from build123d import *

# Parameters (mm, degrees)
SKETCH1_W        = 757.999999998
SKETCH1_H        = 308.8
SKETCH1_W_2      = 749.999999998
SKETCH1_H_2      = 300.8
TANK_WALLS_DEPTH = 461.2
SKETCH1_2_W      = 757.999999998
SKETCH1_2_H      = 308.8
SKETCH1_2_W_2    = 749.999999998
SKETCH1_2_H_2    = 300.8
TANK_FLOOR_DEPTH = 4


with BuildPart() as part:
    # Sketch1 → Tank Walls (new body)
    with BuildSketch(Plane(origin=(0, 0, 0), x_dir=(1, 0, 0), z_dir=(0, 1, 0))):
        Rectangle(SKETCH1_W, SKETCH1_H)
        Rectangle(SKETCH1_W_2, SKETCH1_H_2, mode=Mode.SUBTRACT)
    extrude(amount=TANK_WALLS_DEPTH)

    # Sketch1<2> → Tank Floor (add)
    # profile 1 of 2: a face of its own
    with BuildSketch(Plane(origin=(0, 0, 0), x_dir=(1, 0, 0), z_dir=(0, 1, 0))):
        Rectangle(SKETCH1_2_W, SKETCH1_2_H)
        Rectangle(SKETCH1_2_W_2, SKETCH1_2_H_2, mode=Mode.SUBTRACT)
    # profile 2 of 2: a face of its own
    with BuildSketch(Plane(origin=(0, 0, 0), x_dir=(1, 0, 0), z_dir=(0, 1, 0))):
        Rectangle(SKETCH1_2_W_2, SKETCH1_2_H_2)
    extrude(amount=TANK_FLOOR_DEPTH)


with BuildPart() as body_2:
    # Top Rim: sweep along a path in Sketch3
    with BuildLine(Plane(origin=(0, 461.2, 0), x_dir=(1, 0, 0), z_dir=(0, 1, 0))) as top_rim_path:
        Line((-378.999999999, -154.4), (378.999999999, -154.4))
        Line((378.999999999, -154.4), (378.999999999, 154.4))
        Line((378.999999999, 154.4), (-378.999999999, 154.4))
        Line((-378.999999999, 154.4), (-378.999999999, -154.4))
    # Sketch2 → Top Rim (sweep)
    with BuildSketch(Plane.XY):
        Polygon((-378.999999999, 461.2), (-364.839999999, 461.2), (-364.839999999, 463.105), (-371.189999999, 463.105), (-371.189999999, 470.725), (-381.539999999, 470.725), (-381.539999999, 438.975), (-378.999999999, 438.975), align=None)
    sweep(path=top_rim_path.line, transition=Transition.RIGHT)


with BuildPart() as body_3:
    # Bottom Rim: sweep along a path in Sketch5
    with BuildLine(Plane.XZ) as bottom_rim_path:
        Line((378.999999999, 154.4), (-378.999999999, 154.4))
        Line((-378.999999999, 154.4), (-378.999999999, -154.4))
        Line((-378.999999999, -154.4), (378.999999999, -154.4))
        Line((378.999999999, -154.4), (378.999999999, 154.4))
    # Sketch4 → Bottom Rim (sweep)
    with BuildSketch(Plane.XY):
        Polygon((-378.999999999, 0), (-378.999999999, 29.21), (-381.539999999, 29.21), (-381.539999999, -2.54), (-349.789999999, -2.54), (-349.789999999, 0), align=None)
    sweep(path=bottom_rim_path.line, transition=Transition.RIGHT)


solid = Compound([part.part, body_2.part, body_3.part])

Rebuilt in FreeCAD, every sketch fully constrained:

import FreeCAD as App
import Part
import Sketcher
Q = App.Units.Quantity

doc = App.newDocument("Part")
params = doc.addObject("Spreadsheet::Sheet", "Params")
for row, (alias, value) in enumerate([
    ("pad1_length", "461.2 mm"),
    ("pad2_length", "4 mm"),
    ("sketch3_width", "0.1 in"),
    ("sketch3_height", "0.3 in"),
    ("sketch3_width2", "0.25 in"),
    ("sketch3_height2", "1.25 in"),
    ("sketch3_height3", "0.075 in"),
    ("sketch5_width", "0.1 in"),
    ("sketch5_width2", "1.25 in"),
], start=1):
    params.set(f"A{row}", alias)
    params.set(f"B{row}", "=" + value)
    params.setAlias(f"B{row}", alias)

body = doc.addObject("PartDesign::Body", "Body")

# Sketch on XZ plane
sketch1 = doc.addObject("Sketcher::SketchObject", "Sketch")
body.addObject(sketch1)
sketch1.AttachmentSupport = (doc.XZ_Plane, [""])
sketch1.MapMode = "FlatFace"
sketch1.addGeometry(Part.LineSegment(App.Vector(-379, -154, 0), App.Vector(-379, 154, 0)), False)
sketch1.addGeometry(Part.LineSegment(App.Vector(-379, 154, 0), App.Vector(379, 154, 0)), False)
sketch1.addGeometry(Part.LineSegment(App.Vector(379, 154, 0), App.Vector(379, -154, 0)), False)
sketch1.addGeometry(Part.LineSegment(App.Vector(379, -154, 0), App.Vector(-379, -154, 0)), False)
sketch1.addGeometry(Part.LineSegment(App.Vector(375, 150, 0), App.Vector(-375, 150, 0)), False)
sketch1.addGeometry(Part.LineSegment(App.Vector(-375, 150, 0), App.Vector(-375, -150, 0)), False)
sketch1.addGeometry(Part.LineSegment(App.Vector(-375, -150, 0), App.Vector(375, -150, 0)), False)
sketch1.addGeometry(Part.LineSegment(App.Vector(375, -150, 0), App.Vector(375, 150, 0)), False)
sketch1.addConstraint(Sketcher.Constraint("Coincident", 0, 2, 1, 1))
sketch1.addConstraint(Sketcher.Constraint("Coincident", 1, 2, 2, 1))
sketch1.addConstraint(Sketcher.Constraint("Coincident", 2, 2, 3, 1))
sketch1.addConstraint(Sketcher.Constraint("Coincident", 3, 2, 0, 1))
sketch1.addConstraint(Sketcher.Constraint("Coincident", 4, 2, 5, 1))
sketch1.addConstraint(Sketcher.Constraint("Coincident", 5, 2, 6, 1))
sketch1.addConstraint(Sketcher.Constraint("Coincident", 6, 2, 7, 1))
sketch1.addConstraint(Sketcher.Constraint("Coincident", 7, 2, 4, 1))
sketch1.addConstraint(Sketcher.Constraint("Vertical", 0))
sketch1.addConstraint(Sketcher.Constraint("Horizontal", 1))
sketch1.addConstraint(Sketcher.Constraint("Vertical", 2))
sketch1.addConstraint(Sketcher.Constraint("Horizontal", 3))
sketch1.addConstraint(Sketcher.Constraint("Horizontal", 4))
sketch1.addConstraint(Sketcher.Constraint("Vertical", 5))
sketch1.addConstraint(Sketcher.Constraint("Horizontal", 6))
sketch1.addConstraint(Sketcher.Constraint("Vertical", 7))
sketch1.addConstraint(Sketcher.Constraint("Symmetric", 0, 2, 2, 2, -1, 1))
sketch1.addConstraint(Sketcher.Constraint("Symmetric", 4, 2, 6, 2, -1, 1))
sketch1.addConstraint(Sketcher.Constraint("DistanceY", 3, 2, 4, 2, Q("12 in")))
sketch1.addConstraint(Sketcher.Constraint("DistanceX", 1, 1, 1, 2, 758.0))
sketch1.addConstraint(Sketcher.Constraint("DistanceX", 4, 2, 4, 1, 750.0))
sketch1.addConstraint(Sketcher.Constraint("DistanceY", 0, 1, 0, 2, 308.8))
pad1 = doc.addObject("PartDesign::Pad", "Pad")
body.addObject(pad1)
pad1.Profile = sketch1
pad1.setExpression("Length", "Params.pad1_length")
pad1.Reversed = True

# Sketch on XZ plane
sketch2 = doc.addObject("Sketcher::SketchObject", "Sketch001")
body.addObject(sketch2)
sketch2.AttachmentSupport = (doc.XZ_Plane, [""])
sketch2.MapMode = "FlatFace"
sketch2.addGeometry(Part.LineSegment(App.Vector(-379, -154, 0), App.Vector(-379, 154, 0)), False)
sketch2.addGeometry(Part.LineSegment(App.Vector(-379, 154, 0), App.Vector(379, 154, 0)), False)
sketch2.addGeometry(Part.LineSegment(App.Vector(379, 154, 0), App.Vector(379, -154, 0)), False)
sketch2.addGeometry(Part.LineSegment(App.Vector(379, -154, 0), App.Vector(-379, -154, 0)), False)
sketch2.addConstraint(Sketcher.Constraint("Coincident", 0, 2, 1, 1))
sketch2.addConstraint(Sketcher.Constraint("Coincident", 1, 2, 2, 1))
sketch2.addConstraint(Sketcher.Constraint("Coincident", 2, 2, 3, 1))
sketch2.addConstraint(Sketcher.Constraint("Coincident", 3, 2, 0, 1))
sketch2.addConstraint(Sketcher.Constraint("Vertical", 0))
sketch2.addConstraint(Sketcher.Constraint("Horizontal", 1))
sketch2.addConstraint(Sketcher.Constraint("Vertical", 2))
sketch2.addConstraint(Sketcher.Constraint("Horizontal", 3))
sketch2.addConstraint(Sketcher.Constraint("Symmetric", 0, 2, 2, 2, -1, 1))
sketch2.addConstraint(Sketcher.Constraint("DistanceX", 1, 1, 1, 2, 758.0))
sketch2.addConstraint(Sketcher.Constraint("DistanceY", 0, 1, 0, 2, 308.8))
pad2 = doc.addObject("PartDesign::Pad", "Pad001")
body.addObject(pad2)
pad2.Profile = sketch2
pad2.setExpression("Length", "Params.pad2_length")
pad2.Reversed = True
body2 = doc.addObject("PartDesign::Body", "Body001")

# Sketch on XY plane
sketch3 = doc.addObject("Sketcher::SketchObject", "Sketch002")
body2.addObject(sketch3)
sketch3.AttachmentSupport = (doc.getObject("XY_Plane001"), [""])
sketch3.MapMode = "FlatFace"
sketch3.addGeometry(Part.LineSegment(App.Vector(-379, 461.2, 0), App.Vector(-364.8, 461.2, 0)), False)
sketch3.addGeometry(Part.LineSegment(App.Vector(-364.8, 461.2, 0), App.Vector(-364.8, 463.1, 0)), False)
sketch3.addGeometry(Part.LineSegment(App.Vector(-364.8, 463.1, 0), App.Vector(-371.2, 463.1, 0)), False)
sketch3.addGeometry(Part.LineSegment(App.Vector(-371.2, 463.1, 0), App.Vector(-371.2, 470.7, 0)), False)
sketch3.addGeometry(Part.LineSegment(App.Vector(-371.2, 470.7, 0), App.Vector(-381.5, 470.7, 0)), False)
sketch3.addGeometry(Part.LineSegment(App.Vector(-381.5, 470.7, 0), App.Vector(-381.5, 439, 0)), False)
sketch3.addGeometry(Part.LineSegment(App.Vector(-381.5, 439, 0), App.Vector(-379, 439, 0)), False)
sketch3.addGeometry(Part.LineSegment(App.Vector(-379, 439, 0), App.Vector(-379, 461.2, 0)), False)
sketch3.addConstraint(Sketcher.Constraint("Coincident", 0, 2, 1, 1))
sketch3.addConstraint(Sketcher.Constraint("Coincident", 1, 2, 2, 1))
sketch3.addConstraint(Sketcher.Constraint("Coincident", 2, 2, 3, 1))
sketch3.addConstraint(Sketcher.Constraint("Coincident", 3, 2, 4, 1))
sketch3.addConstraint(Sketcher.Constraint("Coincident", 4, 2, 5, 1))
sketch3.addConstraint(Sketcher.Constraint("Coincident", 5, 2, 6, 1))
sketch3.addConstraint(Sketcher.Constraint("Coincident", 6, 2, 7, 1))
sketch3.addConstraint(Sketcher.Constraint("Coincident", 7, 2, 0, 1))
sketch3.addConstraint(Sketcher.Constraint("Horizontal", 0))
sketch3.addConstraint(Sketcher.Constraint("Vertical", 1))
sketch3.addConstraint(Sketcher.Constraint("Horizontal", 2))
sketch3.addConstraint(Sketcher.Constraint("Vertical", 3))
sketch3.addConstraint(Sketcher.Constraint("Horizontal", 4))
sketch3.addConstraint(Sketcher.Constraint("Vertical", 5))
sketch3.addConstraint(Sketcher.Constraint("Horizontal", 6))
sketch3.addConstraint(Sketcher.Constraint("Vertical", 7))
sketch3.addConstraint(Sketcher.Constraint("DistanceX", 6, 1, 6, 2, Q("0.1 in")))
sketch3.addConstraint(Sketcher.Constraint("DistanceY", 3, 1, 3, 2, Q("0.3 in")))
sketch3.addConstraint(Sketcher.Constraint("DistanceX", 2, 2, 2, 1, Q("0.25 in")))
sketch3.addConstraint(Sketcher.Constraint("DistanceY", 5, 2, 5, 1, Q("1.25 in")))
sketch3.addConstraint(Sketcher.Constraint("DistanceY", 1, 1, 1, 2, Q("0.075 in")))
sketch3.addConstraint(Sketcher.Constraint("DistanceX", 0, 1, 0, 2, 14.16))
sketch3.addConstraint(Sketcher.Constraint("DistanceX", 0, 2, -1, 1, 364.84))
sketch3.addConstraint(Sketcher.Constraint("DistanceY", -1, 1, 0, 2, 461.2))
sketch3.setExpression("Constraints[16]", "Params.sketch3_width")
sketch3.setExpression("Constraints[17]", "Params.sketch3_height")
sketch3.setExpression("Constraints[18]", "Params.sketch3_width2")
sketch3.setExpression("Constraints[19]", "Params.sketch3_height2")
sketch3.setExpression("Constraints[20]", "Params.sketch3_height3")

# Sketch on XZ plane
sketch4 = doc.addObject("Sketcher::SketchObject", "Sketch003")
body2.addObject(sketch4)
sketch4.AttachmentSupport = (doc.getObject("XZ_Plane001"), [""])
sketch4.MapMode = "FlatFace"
sketch4.AttachmentOffset = App.Placement(App.Vector(0, 0, -461.2), App.Rotation())
sketch4.addGeometry(Part.LineSegment(App.Vector(-379, 154, 0), App.Vector(379, 154, 0)), False)
sketch4.addGeometry(Part.LineSegment(App.Vector(379, 154, 0), App.Vector(379, -154, 0)), False)
sketch4.addGeometry(Part.LineSegment(App.Vector(379, -154, 0), App.Vector(-379, -154, 0)), False)
sketch4.addGeometry(Part.LineSegment(App.Vector(-379, -154, 0), App.Vector(-379, 154, 0)), False)
sketch4.addConstraint(Sketcher.Constraint("Coincident", 0, 2, 1, 1))
sketch4.addConstraint(Sketcher.Constraint("Coincident", 1, 2, 2, 1))
sketch4.addConstraint(Sketcher.Constraint("Coincident", 2, 2, 3, 1))
sketch4.addConstraint(Sketcher.Constraint("Coincident", 3, 2, 0, 1))
sketch4.addConstraint(Sketcher.Constraint("Horizontal", 0))
sketch4.addConstraint(Sketcher.Constraint("Vertical", 1))
sketch4.addConstraint(Sketcher.Constraint("Horizontal", 2))
sketch4.addConstraint(Sketcher.Constraint("Vertical", 3))
sketch4.addConstraint(Sketcher.Constraint("Symmetric", 0, 2, 2, 2, -1, 1))
sketch4.addConstraint(Sketcher.Constraint("DistanceX", 0, 1, 0, 2, 758.0))
sketch4.addConstraint(Sketcher.Constraint("DistanceY", 1, 2, 1, 1, 308.8))
doc.recompute()

additivepipe = doc.addObject("PartDesign::AdditivePipe", "AdditivePipe")
body2.addObject(additivepipe)
additivepipe.Profile = sketch3
additivepipe.Spine = (sketch4, ["Edge1", "Edge2", "Edge3", "Edge4"])
additivepipe.Transition = "Right corner"
body3 = doc.addObject("PartDesign::Body", "Body002")

# Sketch on XY plane
sketch5 = doc.addObject("Sketcher::SketchObject", "Sketch004")
body3.addObject(sketch5)
sketch5.AttachmentSupport = (doc.getObject("XY_Plane002"), [""])
sketch5.MapMode = "FlatFace"
sketch5.addGeometry(Part.LineSegment(App.Vector(-379, 0, 0), App.Vector(-379, 29.2, 0)), False)
sketch5.addGeometry(Part.LineSegment(App.Vector(-379, 29.2, 0), App.Vector(-381.5, 29.2, 0)), False)
sketch5.addGeometry(Part.LineSegment(App.Vector(-381.5, 29.2, 0), App.Vector(-381.5, -2.5, 0)), False)
sketch5.addGeometry(Part.LineSegment(App.Vector(-381.5, -2.5, 0), App.Vector(-349.8, -2.5, 0)), False)
sketch5.addGeometry(Part.LineSegment(App.Vector(-349.8, -2.5, 0), App.Vector(-349.8, 0, 0)), False)
sketch5.addGeometry(Part.LineSegment(App.Vector(-349.8, 0, 0), App.Vector(-379, 0, 0)), False)
sketch5.addConstraint(Sketcher.Constraint("Coincident", 0, 2, 1, 1))
sketch5.addConstraint(Sketcher.Constraint("Coincident", 1, 2, 2, 1))
sketch5.addConstraint(Sketcher.Constraint("Coincident", 2, 2, 3, 1))
sketch5.addConstraint(Sketcher.Constraint("Coincident", 3, 2, 4, 1))
sketch5.addConstraint(Sketcher.Constraint("Coincident", 4, 2, 5, 1))
sketch5.addConstraint(Sketcher.Constraint("Coincident", 5, 2, 0, 1))
sketch5.addConstraint(Sketcher.Constraint("Vertical", 0))
sketch5.addConstraint(Sketcher.Constraint("Horizontal", 1))
sketch5.addConstraint(Sketcher.Constraint("Vertical", 2))
sketch5.addConstraint(Sketcher.Constraint("Horizontal", 3))
sketch5.addConstraint(Sketcher.Constraint("Vertical", 4))
sketch5.addConstraint(Sketcher.Constraint("Horizontal", 5))
sketch5.addConstraint(Sketcher.Constraint("PointOnObject", 4, 2, -1))
sketch5.addConstraint(Sketcher.Constraint("Equal", 5, 0))
sketch5.addConstraint(Sketcher.Constraint("Equal", 3, 2))
sketch5.addConstraint(Sketcher.Constraint("DistanceX", 1, 2, 1, 1, Q("0.1 in")))
sketch5.addConstraint(Sketcher.Constraint("DistanceX", 3, 1, 3, 2, Q("1.25 in")))
sketch5.addConstraint(Sketcher.Constraint("DistanceX", 0, 2, -1, 1, 379.0))
sketch5.setExpression("Constraints[15]", "Params.sketch5_width")
sketch5.setExpression("Constraints[16]", "Params.sketch5_width2")

# Sketch on XZ plane
sketch6 = doc.addObject("Sketcher::SketchObject", "Sketch005")
body3.addObject(sketch6)
sketch6.AttachmentSupport = (doc.getObject("XZ_Plane002"), [""])
sketch6.MapMode = "FlatFace"
sketch6.addGeometry(Part.LineSegment(App.Vector(379, 154, 0), App.Vector(-379, 154, 0)), False)
sketch6.addGeometry(Part.LineSegment(App.Vector(-379, 154, 0), App.Vector(-379, -154, 0)), False)
sketch6.addGeometry(Part.LineSegment(App.Vector(-379, -154, 0), App.Vector(379, -154, 0)), False)
sketch6.addGeometry(Part.LineSegment(App.Vector(379, -154, 0), App.Vector(379, 154, 0)), False)
sketch6.addConstraint(Sketcher.Constraint("Coincident", 0, 2, 1, 1))
sketch6.addConstraint(Sketcher.Constraint("Coincident", 1, 2, 2, 1))
sketch6.addConstraint(Sketcher.Constraint("Coincident", 2, 2, 3, 1))
sketch6.addConstraint(Sketcher.Constraint("Coincident", 3, 2, 0, 1))
sketch6.addConstraint(Sketcher.Constraint("Horizontal", 0))
sketch6.addConstraint(Sketcher.Constraint("Vertical", 1))
sketch6.addConstraint(Sketcher.Constraint("Horizontal", 2))
sketch6.addConstraint(Sketcher.Constraint("Vertical", 3))
sketch6.addConstraint(Sketcher.Constraint("Symmetric", 0, 2, 2, 2, -1, 1))
sketch6.addConstraint(Sketcher.Constraint("DistanceX", 0, 2, 0, 1, 758.0))
sketch6.addConstraint(Sketcher.Constraint("DistanceY", 1, 2, 1, 1, 308.8))
doc.recompute()

additivepipe2 = doc.addObject("PartDesign::AdditivePipe", "AdditivePipe001")
body3.addObject(additivepipe2)
additivepipe2.Profile = sketch5
additivepipe2.Spine = (sketch6, ["Edge1", "Edge2", "Edge3", "Edge4"])
additivepipe2.Transition = "Right corner"

doc.recompute()
